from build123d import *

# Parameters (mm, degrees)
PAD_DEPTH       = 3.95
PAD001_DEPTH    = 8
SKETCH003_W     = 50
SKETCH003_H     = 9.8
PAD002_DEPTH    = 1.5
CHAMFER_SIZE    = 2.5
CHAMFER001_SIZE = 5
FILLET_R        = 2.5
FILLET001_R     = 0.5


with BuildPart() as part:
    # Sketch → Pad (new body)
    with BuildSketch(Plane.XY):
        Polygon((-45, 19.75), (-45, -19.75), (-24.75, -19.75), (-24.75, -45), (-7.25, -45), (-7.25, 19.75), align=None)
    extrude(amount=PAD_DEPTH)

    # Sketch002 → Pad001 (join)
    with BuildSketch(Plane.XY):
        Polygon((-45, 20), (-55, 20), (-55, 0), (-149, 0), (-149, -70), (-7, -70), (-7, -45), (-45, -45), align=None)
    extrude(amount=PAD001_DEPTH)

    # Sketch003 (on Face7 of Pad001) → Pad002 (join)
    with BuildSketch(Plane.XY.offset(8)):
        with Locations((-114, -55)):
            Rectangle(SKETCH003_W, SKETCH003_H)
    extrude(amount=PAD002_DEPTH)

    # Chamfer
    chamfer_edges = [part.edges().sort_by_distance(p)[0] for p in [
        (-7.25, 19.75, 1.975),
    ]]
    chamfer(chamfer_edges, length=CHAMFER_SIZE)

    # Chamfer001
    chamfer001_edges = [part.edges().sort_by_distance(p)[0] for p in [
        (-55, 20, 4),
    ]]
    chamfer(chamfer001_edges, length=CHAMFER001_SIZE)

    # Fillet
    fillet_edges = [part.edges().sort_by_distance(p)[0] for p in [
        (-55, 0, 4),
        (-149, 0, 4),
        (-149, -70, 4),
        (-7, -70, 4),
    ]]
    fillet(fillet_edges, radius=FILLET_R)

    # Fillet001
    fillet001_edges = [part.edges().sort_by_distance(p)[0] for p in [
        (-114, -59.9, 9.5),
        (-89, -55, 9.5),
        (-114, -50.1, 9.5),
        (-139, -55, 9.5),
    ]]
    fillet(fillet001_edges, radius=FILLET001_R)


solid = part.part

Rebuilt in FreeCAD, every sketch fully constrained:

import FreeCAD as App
import Part
import Sketcher

V = App.Vector


def edges_at(feature, points):
    """Names of the edges that pass closest to the given points."""
    edges = feature.Shape.Edges
    near = lambda p: min(range(len(edges)), key=lambda i: edges[i].distToShape(Part.Vertex(*p))[0])
    return sorted({f"Edge{near(p) + 1}" for p in points})


def add_polygon(sketch, points):
    """Adds a closed chain of lines whose ends are joined by coincident constraints."""
    first, n = sketch.GeometryCount, len(points)
    for a, b in zip(points, points[1:] + points[:1]):
        sketch.addGeometry(Part.LineSegment(App.Vector(*a, 0), App.Vector(*b, 0)), False)
    for i in range(n):
        sketch.addConstraint(Sketcher.Constraint("Coincident", first + i, 2, first + (i + 1) % n, 1))

doc = App.newDocument("Part")
params = doc.addObject("Spreadsheet::Sheet", "Params")
for row, (alias, value) in enumerate([
    ("sketch1_width", "17.5 mm"),
    ("sketch1_height", "39.5 mm"),
    ("sketch1_width2", "20.25 mm"),
    ("sketch1_height2", "25.25 mm"),
    ("pad1_length", "3.95 mm"),
    ("sketch2_width", "10 mm"),
    ("sketch2_width2", "94 mm"),
    ("sketch2_width3", "142 mm"),
    ("sketch2_height", "20 mm"),
    ("sketch2_height2", "70 mm"),
    ("pad2_length", "8 mm"),
    ("sketch3_width", "50 mm"),
    ("sketch3_height", "9.8 mm"),
    ("pad3_length", "1.5 mm"),
    ("chamfer_size", "2.5 mm"),
    ("chamfer2_size", "5 mm"),
    ("fillet_radius", "2.5 mm"),
    ("fillet2_radius", "0.5 mm"),
], start=1):
    params.set(f"A{row}", alias)
    params.set(f"B{row}", "=" + value)
    params.setAlias(f"B{row}", alias)

body = doc.addObject("PartDesign::Body", "Body")

sketch1 = body.newObject("Sketcher::SketchObject", "Sketch")
sketch1.AttachmentSupport = (doc.getObject("XY_Plane"), [""])
sketch1.MapMode = "FlatFace"
add_polygon(sketch1, [(-45, 20), (-45, -20), (-25, -20), (-25, -45), (-7, -45), (-7, 20)])
sketch1.addConstraint([
    Sketcher.Constraint("Vertical", 0),
    Sketcher.Constraint("Horizontal", 1),
    Sketcher.Constraint("Vertical", 2),
    Sketcher.Constraint("Horizontal", 3),
    Sketcher.Constraint("Vertical", 4),
    Sketcher.Constraint("Horizontal", 5),
    Sketcher.Constraint("DistanceX", 3, 1, 3, 2, 17.5),
    Sketcher.Constraint("DistanceY", 0, 2, 0, 1, 39.5),
    Sketcher.Constraint("DistanceX", 0, 2, -1, 1, 45.0),
    Sketcher.Constraint("DistanceY", 2, 2, -1, 1, 45.0),
    Sketcher.Constraint("DistanceX", 1, 1, 1, 2, 20.25),
    Sketcher.Constraint("DistanceY", 2, 2, 2, 1, 25.25),
])
sketch1.setExpression("Constraints[12]", "Params.sketch1_width")
sketch1.setExpression("Constraints[13]", "Params.sketch1_height")
sketch1.setExpression("Constraints[16]", "Params.sketch1_width2")
sketch1.setExpression("Constraints[17]", "Params.sketch1_height2")
pad1 = body.newObject("PartDesign::Pad", "Pad")
pad1.Profile = sketch1
pad1.setExpression("Length", "Params.pad1_length")

sketch2 = body.newObject("Sketcher::SketchObject", "Sketch001")
sketch2.AttachmentSupport = (doc.getObject("XY_Plane"), [""])
sketch2.MapMode = "FlatFace"
add_polygon(sketch2, [(-45, 20), (-55, 20), (-55, 0), (-149, 0), (-149, -70), (-7, -70), (-7, -45), (-45, -45)])
sketch2.addConstraint([
    Sketcher.Constraint("Horizontal", 0),
    Sketcher.Constraint("Vertical", 1),
    Sketcher.Constraint("Horizontal", 2),
    Sketcher.Constraint("Vertical", 3),
    Sketcher.Constraint("Horizontal", 4),
    Sketcher.Constraint("Vertical", 5),
    Sketcher.Constraint("Horizontal", 6),
    Sketcher.Constraint("Vertical", 7),
    Sketcher.Constraint("PointOnObject", 1, 2, -1),
    Sketcher.Constraint("DistanceX", 0, 2, 0, 1, 10.0),
    Sketcher.Constraint("DistanceX", 2, 2, 2, 1, 94.0),
    Sketcher.Constraint("DistanceX", 4, 1, 4, 2, 142.0),
    Sketcher.Constraint("DistanceY", 1, 2, 1, 1, 20.0),
    Sketcher.Constraint("DistanceY", 3, 2, 3, 1, 70.0),
    Sketcher.Constraint("DistanceY", 5, 1, 5, 2, 25.0),
    Sketcher.Constraint("DistanceX", 0, 2, -1, 1, 55.0),
])
sketch2.setExpression("Constraints[17]", "Params.sketch2_width")
sketch2.setExpression("Constraints[18]", "Params.sketch2_width2")
sketch2.setExpression("Constraints[19]", "Params.sketch2_width3")
sketch2.setExpression("Constraints[20]", "Params.sketch2_height")
sketch2.setExpression("Constraints[21]", "Params.sketch2_height2")
pad2 = body.newObject("PartDesign::Pad", "Pad001")
pad2.Profile = sketch2
pad2.setExpression("Length", "Params.pad2_length")

sketch3 = body.newObject("Sketcher::SketchObject", "Sketch002")
sketch3.AttachmentSupport = (doc.getObject("XY_Plane"), [""])
sketch3.MapMode = "FlatFace"
sketch3.AttachmentOffset = App.Placement(V(0, 0, 8), App.Rotation())
add_polygon(sketch3, [(-139, -50), (-139, -60), (-89, -60), (-89, -50)])
sketch3.addConstraint([
    Sketcher.Constraint("Vertical", 0),
    Sketcher.Constraint("Horizontal", 1),
    Sketcher.Constraint("Vertical", 2),
    Sketcher.Constraint("Horizontal", 3),
    Sketcher.Constraint("DistanceX", 1, 1, 1, 2, 50.0),
    Sketcher.Constraint("DistanceY", 0, 2, 0, 1, 9.8),
    Sketcher.Constraint("DistanceX", 0, 2, -1, 1, 139.0),
    Sketcher.Constraint("DistanceY", 0, 2, -1, 1, 59.9),
])
sketch3.setExpression("Constraints[8]", "Params.sketch3_width")
sketch3.setExpression("Constraints[9]", "Params.sketch3_height")
pad3 = body.newObject("PartDesign::Pad", "Pad002")
pad3.Profile = sketch3
pad3.setExpression("Length", "Params.pad3_length")
doc.recompute()

chamfer = body.newObject("PartDesign::Chamfer", "Chamfer")
chamfer.Base = (pad3, edges_at(pad3, [(-7.25, 19.75, 1.975)]))
chamfer.setExpression("Size", "Params.chamfer_size")
doc.recompute()

chamfer2 = body.newObject("PartDesign::Chamfer", "Chamfer001")
chamfer2.Base = (chamfer, edges_at(chamfer, [(-55, 20, 4)]))
chamfer2.setExpression("Size", "Params.chamfer2_size")
doc.recompute()

fillet = body.newObject("PartDesign::Fillet", "Fillet")
fillet.Base = (chamfer2, edges_at(chamfer2, [
    (-55, 0, 4),
    (-149, 0, 4),
    (-149, -70, 4),
    (-7, -70, 4),
]))
fillet.setExpression("Radius", "Params.fillet_radius")
doc.recompute()

fillet2 = body.newObject("PartDesign::Fillet", "Fillet001")
fillet2.Base = (fillet, edges_at(fillet, [
    (-114, -59.9, 9.5),
    (-89, -55, 9.5),
    (-114, -50.1, 9.5),
    (-139, -55, 9.5),
]))
fillet2.setExpression("Radius", "Params.fillet2_radius")

doc.recompute()
